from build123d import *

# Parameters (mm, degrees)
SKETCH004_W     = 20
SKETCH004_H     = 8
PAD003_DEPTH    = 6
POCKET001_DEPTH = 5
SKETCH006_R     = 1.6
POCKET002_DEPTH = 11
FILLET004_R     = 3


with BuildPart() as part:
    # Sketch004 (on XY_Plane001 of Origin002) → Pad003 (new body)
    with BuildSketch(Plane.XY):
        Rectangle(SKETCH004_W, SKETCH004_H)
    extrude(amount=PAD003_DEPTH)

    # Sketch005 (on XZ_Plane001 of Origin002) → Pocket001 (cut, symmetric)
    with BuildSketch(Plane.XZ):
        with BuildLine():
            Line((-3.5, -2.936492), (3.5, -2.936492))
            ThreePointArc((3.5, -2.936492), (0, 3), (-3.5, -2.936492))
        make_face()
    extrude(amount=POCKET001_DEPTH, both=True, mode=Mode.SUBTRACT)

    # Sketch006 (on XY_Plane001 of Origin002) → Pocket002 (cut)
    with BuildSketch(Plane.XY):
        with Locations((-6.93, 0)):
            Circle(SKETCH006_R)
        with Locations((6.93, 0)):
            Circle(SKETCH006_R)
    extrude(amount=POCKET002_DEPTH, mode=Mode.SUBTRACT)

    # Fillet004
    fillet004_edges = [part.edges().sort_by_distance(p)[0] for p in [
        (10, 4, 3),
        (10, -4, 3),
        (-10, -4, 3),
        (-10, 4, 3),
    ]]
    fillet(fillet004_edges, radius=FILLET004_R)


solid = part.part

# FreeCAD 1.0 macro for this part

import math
import FreeCAD as App
import Part
import Sketcher

V = App.Vector
Q = App.Units.Quantity


def edges_at(feature, points):
    """Names of the edges that pass closest to the given points."""
    edges = feature.Shape.Edges
    near = lambda p: min(range(len(edges)), key=lambda i: edges[i].distToShape(Part.Vertex(*p))[0])
    return sorted({f"Edge{near(p) + 1}" for p in points})

doc = App.newDocument("Part")
body = doc.addObject("PartDesign::Body", "Body")

# Sketch on XY plane
sketch1 = body.newObject("Sketcher::SketchObject", "Sketch")
sketch1.AttachmentSupport = (doc.getObject("XY_Plane"), [""])
sketch1.MapMode = "FlatFace"
sketch1.addGeometry([
    Part.LineSegment(V(-10, 4, 0), V(-10, -4, 0)),
    Part.LineSegment(V(-10, -4, 0), V(10, -4, 0)),
    Part.LineSegment(V(10, -4, 0), V(10, 4, 0)),
    Part.LineSegment(V(10, 4, 0), V(-10, 4, 0)),
], False)
sketch1.addConstraint([
    Sketcher.Constraint("Coincident", 0, 2, 1, 1),
    Sketcher.Constraint("Coincident", 1, 2, 2, 1),
    Sketcher.Constraint("Coincident", 2, 2, 3, 1),
    Sketcher.Constraint("Coincident", 3, 2, 0, 1),
    Sketcher.Constraint("Vertical", 0),
    Sketcher.Constraint("Horizontal", 1),
    Sketcher.Constraint("Vertical", 2),
    Sketcher.Constraint("Horizontal", 3),
    Sketcher.Constraint("Symmetric", 0, 2, 2, 2, -1, 1),
    Sketcher.Constraint("DistanceX", 1, 1, 1, 2, Q("20 mm")),
    Sketcher.Constraint("DistanceY", 0, 2, 0, 1, Q("8 mm")),
])
pad1 = body.newObject("PartDesign::Pad", "Pad")
pad1.Profile = sketch1
pad1.Length = 6

# Sketch on XZ plane
sketch2 = body.newObject("Sketcher::SketchObject", "Sketch001")
sketch2.AttachmentSupport = (doc.getObject("XZ_Plane"), [""])
sketch2.MapMode = "FlatFace"
sketch2.addGeometry([
    Part.LineSegment(V(-3.5, -2.9, 0), V(3.5, -2.9, 0)),
    Part.ArcOfCircle(Part.Circle(V(0, -1, 0), V(0, 0, 1), 4), math.radians(-29), math.radians(209)),
], False)
sketch2.addConstraint([
    Sketcher.Constraint("Coincident", 0, 1, 1, 2),
    Sketcher.Constraint("Coincident", 1, 1, 0, 2),
    Sketcher.Constraint("Horizontal", 0),
    Sketcher.Constraint("PointOnObject", 1, 3, -2),
    Sketcher.Constraint("Radius", 1, Q("4 mm")),
    Sketcher.Constraint("DistanceX", 0, 1, 0, 2, Q("7 mm")),
    Sketcher.Constraint("DistanceY", 1, 3, -1, 1, Q("1 mm")),
])
pocket1 = body.newObject("PartDesign::Pocket", "Pocket")
pocket1.Profile = sketch2
pocket1.Length = 10
pocket1.Midplane = True

# Sketch on XY plane
sketch3 = body.newObject("Sketcher::SketchObject", "Sketch002")
sketch3.AttachmentSupport = (doc.getObject("XY_Plane"), [""])
sketch3.MapMode = "FlatFace"
sketch3.addGeometry([
    Part.Circle(V(-6.9, 0, 0), V(0, 0, 1), 1.6),
    Part.Circle(V(6.9, 0, 0), V(0, 0, 1), 1.6),
], False)
sketch3.addConstraint([
    Sketcher.Constraint("Equal", 0, 1),
    Sketcher.Constraint("Symmetric", 0, 3, 1, 3, -1, 1),
    Sketcher.Constraint("PointOnObject", 0, 3, -1),
    Sketcher.Constraint("Diameter", 0, Q("3.2 mm")),
    Sketcher.Constraint("DistanceX", 0, 3, -1, 1, Q("6.93 mm")),
])
pocket2 = body.newObject("PartDesign::Pocket", "Pocket001")
pocket2.Profile = sketch3
pocket2.Length = 11
pocket2.Reversed = True
doc.recompute()

fillet = body.newObject("PartDesign::Fillet", "Fillet")
fillet.Base = (pocket2, edges_at(pocket2, [
    (10, 4, 3),
    (10, -4, 3),
    (-10, -4, 3),
    (-10, 4, 3),
]))
fillet.Radius = 3

doc.recompute()
